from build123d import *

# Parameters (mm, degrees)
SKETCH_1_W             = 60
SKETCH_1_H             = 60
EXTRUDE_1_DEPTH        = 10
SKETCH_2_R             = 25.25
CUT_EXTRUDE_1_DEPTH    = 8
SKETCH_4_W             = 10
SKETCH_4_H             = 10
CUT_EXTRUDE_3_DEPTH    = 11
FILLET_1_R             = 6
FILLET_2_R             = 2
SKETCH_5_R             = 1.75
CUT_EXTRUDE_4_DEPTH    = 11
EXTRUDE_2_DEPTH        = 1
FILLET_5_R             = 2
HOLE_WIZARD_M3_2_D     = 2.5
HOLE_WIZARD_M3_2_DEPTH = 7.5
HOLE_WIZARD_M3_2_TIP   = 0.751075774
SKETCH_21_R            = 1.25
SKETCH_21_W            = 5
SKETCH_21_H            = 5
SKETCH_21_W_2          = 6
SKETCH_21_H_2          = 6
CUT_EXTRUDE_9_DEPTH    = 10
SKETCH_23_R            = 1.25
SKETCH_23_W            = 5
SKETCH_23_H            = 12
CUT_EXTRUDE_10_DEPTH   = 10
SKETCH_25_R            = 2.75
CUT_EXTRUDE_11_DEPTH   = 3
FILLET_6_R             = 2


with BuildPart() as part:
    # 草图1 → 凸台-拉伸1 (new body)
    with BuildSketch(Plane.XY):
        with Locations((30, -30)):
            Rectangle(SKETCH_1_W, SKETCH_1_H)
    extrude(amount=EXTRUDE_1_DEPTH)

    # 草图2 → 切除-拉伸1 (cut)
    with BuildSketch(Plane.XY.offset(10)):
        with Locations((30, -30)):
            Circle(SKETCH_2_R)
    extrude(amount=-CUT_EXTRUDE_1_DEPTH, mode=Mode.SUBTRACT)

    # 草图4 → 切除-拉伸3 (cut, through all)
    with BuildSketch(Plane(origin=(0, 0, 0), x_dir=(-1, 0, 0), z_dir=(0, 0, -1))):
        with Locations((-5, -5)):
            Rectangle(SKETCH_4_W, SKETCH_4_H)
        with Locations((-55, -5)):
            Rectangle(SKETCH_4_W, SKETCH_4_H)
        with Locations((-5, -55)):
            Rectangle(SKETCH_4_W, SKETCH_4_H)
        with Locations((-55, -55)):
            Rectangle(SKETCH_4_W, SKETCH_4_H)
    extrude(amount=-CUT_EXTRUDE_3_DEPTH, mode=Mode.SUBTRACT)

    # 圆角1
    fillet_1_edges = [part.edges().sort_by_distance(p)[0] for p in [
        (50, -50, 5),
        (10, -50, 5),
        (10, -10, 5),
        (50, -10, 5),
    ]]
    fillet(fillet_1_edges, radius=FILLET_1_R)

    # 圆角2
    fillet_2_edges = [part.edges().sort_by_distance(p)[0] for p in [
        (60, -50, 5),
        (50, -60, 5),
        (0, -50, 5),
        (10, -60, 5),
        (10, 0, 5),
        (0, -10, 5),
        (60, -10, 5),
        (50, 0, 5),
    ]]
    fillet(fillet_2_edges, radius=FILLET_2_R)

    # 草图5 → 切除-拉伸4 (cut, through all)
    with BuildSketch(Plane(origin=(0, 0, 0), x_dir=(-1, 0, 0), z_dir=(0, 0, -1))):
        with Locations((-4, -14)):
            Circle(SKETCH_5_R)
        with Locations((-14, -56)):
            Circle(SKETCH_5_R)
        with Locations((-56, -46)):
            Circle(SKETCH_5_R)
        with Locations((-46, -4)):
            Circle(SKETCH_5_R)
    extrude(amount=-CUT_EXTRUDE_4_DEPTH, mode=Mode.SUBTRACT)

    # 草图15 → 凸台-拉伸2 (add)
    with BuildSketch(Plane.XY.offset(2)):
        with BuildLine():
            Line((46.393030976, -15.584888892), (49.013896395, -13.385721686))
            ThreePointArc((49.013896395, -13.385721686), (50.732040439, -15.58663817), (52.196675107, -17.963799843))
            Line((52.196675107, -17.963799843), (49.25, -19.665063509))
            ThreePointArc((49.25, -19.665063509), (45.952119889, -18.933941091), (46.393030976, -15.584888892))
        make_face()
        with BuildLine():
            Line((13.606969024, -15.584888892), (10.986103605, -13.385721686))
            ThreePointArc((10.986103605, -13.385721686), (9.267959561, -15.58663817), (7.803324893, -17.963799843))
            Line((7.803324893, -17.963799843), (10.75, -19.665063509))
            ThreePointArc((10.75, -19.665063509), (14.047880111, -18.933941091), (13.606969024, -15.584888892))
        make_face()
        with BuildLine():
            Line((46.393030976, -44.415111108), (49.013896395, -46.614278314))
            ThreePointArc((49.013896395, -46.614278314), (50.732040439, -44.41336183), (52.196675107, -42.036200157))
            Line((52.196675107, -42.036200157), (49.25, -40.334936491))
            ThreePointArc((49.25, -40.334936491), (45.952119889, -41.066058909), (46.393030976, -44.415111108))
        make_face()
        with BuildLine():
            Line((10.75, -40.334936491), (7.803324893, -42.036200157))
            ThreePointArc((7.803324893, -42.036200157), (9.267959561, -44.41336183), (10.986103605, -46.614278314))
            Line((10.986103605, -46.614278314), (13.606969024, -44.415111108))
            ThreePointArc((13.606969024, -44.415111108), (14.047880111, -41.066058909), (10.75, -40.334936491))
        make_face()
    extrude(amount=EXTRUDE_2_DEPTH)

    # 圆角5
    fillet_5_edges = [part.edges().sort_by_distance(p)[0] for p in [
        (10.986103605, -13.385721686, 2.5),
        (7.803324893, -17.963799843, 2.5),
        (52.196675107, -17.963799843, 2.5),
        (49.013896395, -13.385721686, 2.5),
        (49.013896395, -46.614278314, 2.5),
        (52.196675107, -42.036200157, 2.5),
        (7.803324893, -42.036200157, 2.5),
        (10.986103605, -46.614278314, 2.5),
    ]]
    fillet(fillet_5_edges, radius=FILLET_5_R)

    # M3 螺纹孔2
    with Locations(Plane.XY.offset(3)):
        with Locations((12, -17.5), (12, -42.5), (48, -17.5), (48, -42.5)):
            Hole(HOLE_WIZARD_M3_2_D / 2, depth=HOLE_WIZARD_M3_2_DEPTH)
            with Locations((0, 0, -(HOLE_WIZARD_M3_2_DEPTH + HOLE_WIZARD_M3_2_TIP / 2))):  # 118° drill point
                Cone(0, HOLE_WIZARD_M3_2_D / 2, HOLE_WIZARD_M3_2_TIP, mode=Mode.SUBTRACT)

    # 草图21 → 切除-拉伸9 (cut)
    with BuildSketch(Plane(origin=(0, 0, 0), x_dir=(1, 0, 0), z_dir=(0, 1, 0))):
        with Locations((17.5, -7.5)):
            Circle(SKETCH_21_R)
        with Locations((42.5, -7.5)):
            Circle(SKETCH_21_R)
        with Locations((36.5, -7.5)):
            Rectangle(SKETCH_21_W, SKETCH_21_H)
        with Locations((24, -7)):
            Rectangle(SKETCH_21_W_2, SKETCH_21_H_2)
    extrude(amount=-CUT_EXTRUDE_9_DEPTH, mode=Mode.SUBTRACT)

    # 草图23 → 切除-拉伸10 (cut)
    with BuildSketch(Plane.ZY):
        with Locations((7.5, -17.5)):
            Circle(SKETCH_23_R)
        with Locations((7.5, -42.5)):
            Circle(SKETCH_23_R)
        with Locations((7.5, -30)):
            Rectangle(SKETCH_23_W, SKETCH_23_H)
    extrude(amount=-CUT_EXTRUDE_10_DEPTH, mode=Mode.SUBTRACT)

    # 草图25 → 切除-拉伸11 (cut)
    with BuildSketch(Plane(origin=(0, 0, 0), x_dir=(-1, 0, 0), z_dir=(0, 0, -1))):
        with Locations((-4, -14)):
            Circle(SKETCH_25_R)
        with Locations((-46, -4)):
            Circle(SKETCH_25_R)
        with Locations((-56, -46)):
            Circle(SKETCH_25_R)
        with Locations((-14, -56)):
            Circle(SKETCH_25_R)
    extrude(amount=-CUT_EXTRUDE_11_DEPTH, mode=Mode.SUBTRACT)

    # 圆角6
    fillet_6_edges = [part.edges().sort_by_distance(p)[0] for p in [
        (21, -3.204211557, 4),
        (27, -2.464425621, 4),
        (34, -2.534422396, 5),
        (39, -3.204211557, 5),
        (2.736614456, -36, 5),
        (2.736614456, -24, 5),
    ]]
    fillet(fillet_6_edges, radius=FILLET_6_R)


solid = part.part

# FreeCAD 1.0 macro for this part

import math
import FreeCAD as App
import Part
import Sketcher
from FreeCAD import Vector
Q = App.Units.Quantity


def edges_at(feature, points):
    """Names of the edges that pass closest to the given points."""
    edges = feature.Shape.Edges
    near = lambda p: min(range(len(edges)), key=lambda i: edges[i].distToShape(Part.Vertex(*p))[0])
    return sorted({f"Edge{near(p) + 1}" for p in points})

doc = App.newDocument("Part")
body = doc.addObject("PartDesign::Body", "Body")

# Sketch on XY plane
sketch1 = body.newObject("Sketcher::SketchObject", "Sketch")
sketch1.AttachmentSupport = (doc.getObject("XY_Plane"), [""])
sketch1.MapMode = "FlatFace"
sketch1.addGeometry(Part.LineSegment(Vector(0, 0, 0), Vector(0, -60, 0)), False)
sketch1.addGeometry(Part.LineSegment(Vector(0, -60, 0), Vector(60, -60, 0)), False)
sketch1.addGeometry(Part.LineSegment(Vector(60, -60, 0), Vector(60, 0, 0)), False)
sketch1.addGeometry(Part.LineSegment(Vector(60, 0, 0), Vector(0, 0, 0)), False)
sketch1.addConstraint(Sketcher.Constraint("Coincident", 0, 2, 1, 1))
sketch1.addConstraint(Sketcher.Constraint("Coincident", 1, 2, 2, 1))
sketch1.addConstraint(Sketcher.Constraint("Coincident", 2, 2, 3, 1))
sketch1.addConstraint(Sketcher.Constraint("Coincident", 3, 2, 0, 1))
sketch1.addConstraint(Sketcher.Constraint("Vertical", 0))
sketch1.addConstraint(Sketcher.Constraint("Horizontal", 1))
sketch1.addConstraint(Sketcher.Constraint("Vertical", 2))
sketch1.addConstraint(Sketcher.Constraint("Horizontal", 3))
sketch1.addConstraint(Sketcher.Constraint("Coincident", 3, 2, -1, 1))
sketch1.addConstraint(Sketcher.Constraint("Equal", 3, 0))
sketch1.addConstraint(Sketcher.Constraint("DistanceX", 1, 1, 1, 2, Q("60 mm")))
pad1 = body.newObject("PartDesign::Pad", "Pad")
pad1.Profile = sketch1
pad1.Length = 10

# Sketch on XY plane
sketch2 = body.newObject("Sketcher::SketchObject", "Sketch001")
sketch2.AttachmentSupport = (doc.getObject("XY_Plane"), [""])
sketch2.MapMode = "FlatFace"
sketch2.AttachmentOffset = App.Placement(Vector(0, 0, 10), App.Rotation())
sketch2.addGeometry(Part.Circle(Vector(30, -30, 0), Vector(0, 0, 1), 25), False)
sketch2.addConstraint(Sketcher.Constraint("Diameter", 0, Q("50.5 mm")))
sketch2.addConstraint(Sketcher.Constraint("DistanceX", -1, 1, 0, 3, Q("30 mm")))
sketch2.addConstraint(Sketcher.Constraint("DistanceY", 0, 3, -1, 1, Q("30 mm")))
pocket1 = body.newObject("PartDesign::Pocket", "Pocket")
pocket1.Profile = sketch2
pocket1.Length = 8

# Sketch on XY plane
sketch3 = body.newObject("Sketcher::SketchObject", "Sketch002")
sketch3.AttachmentSupport = (doc.getObject("XY_Plane"), [""])
sketch3.MapMode = "FlatFace"
sketch3.addGeometry(Part.LineSegment(Vector(10, 0, 0), Vector(10, -10, 0)), False)
sketch3.addGeometry(Part.LineSegment(Vector(10, -10, 0), Vector(0, -10, 0)), False)
sketch3.addGeometry(Part.LineSegment(Vector(0, -10, 0), Vector(0, 0, 0)), False)
sketch3.addGeometry(Part.LineSegment(Vector(0, 0, 0), Vector(10, 0, 0)), False)
sketch3.addGeometry(Part.LineSegment(Vector(60, 0, 0), Vector(60, -10, 0)), False)
sketch3.addGeometry(Part.LineSegment(Vector(60, -10, 0), Vector(50, -10, 0)), False)
sketch3.addGeometry(Part.LineSegment(Vector(50, -10, 0), Vector(50, 0, 0)), False)
sketch3.addGeometry(Part.LineSegment(Vector(50, 0, 0), Vector(60, 0, 0)), False)
sketch3.addGeometry(Part.LineSegment(Vector(10, -50, 0), Vector(10, -60, 0)), False)
sketch3.addGeometry(Part.LineSegment(Vector(10, -60, 0), Vector(0, -60, 0)), False)
sketch3.addGeometry(Part.LineSegment(Vector(0, -60, 0), Vector(0, -50, 0)), False)
sketch3.addGeometry(Part.LineSegment(Vector(0, -50, 0), Vector(10, -50, 0)), False)
sketch3.addGeometry(Part.LineSegment(Vector(60, -50, 0), Vector(60, -60, 0)), False)
sketch3.addGeometry(Part.LineSegment(Vector(60, -60, 0), Vector(50, -60, 0)), False)
sketch3.addGeometry(Part.LineSegment(Vector(50, -60, 0), Vector(50, -50, 0)), False)
sketch3.addGeometry(Part.LineSegment(Vector(50, -50, 0), Vector(60, -50, 0)), False)
sketch3.addConstraint(Sketcher.Constraint("Coincident", 0, 2, 1, 1))
sketch3.addConstraint(Sketcher.Constraint("Coincident", 1, 2, 2, 1))
sketch3.addConstraint(Sketcher.Constraint("Coincident", 2, 2, 3, 1))
sketch3.addConstraint(Sketcher.Constraint("Coincident", 3, 2, 0, 1))
sketch3.addConstraint(Sketcher.Constraint("Coincident", 4, 2, 5, 1))
sketch3.addConstraint(Sketcher.Constraint("Coincident", 5, 2, 6, 1))
sketch3.addConstraint(Sketcher.Constraint("Coincident", 6, 2, 7, 1))
sketch3.addConstraint(Sketcher.Constraint("Coincident", 7, 2, 4, 1))
sketch3.addConstraint(Sketcher.Constraint("Coincident", 8, 2, 9, 1))
sketch3.addConstraint(Sketcher.Constraint("Coincident", 9, 2, 10, 1))
sketch3.addConstraint(Sketcher.Constraint("Coincident", 10, 2, 11, 1))
sketch3.addConstraint(Sketcher.Constraint("Coincident", 11, 2, 8, 1))
sketch3.addConstraint(Sketcher.Constraint("Coincident", 12, 2, 13, 1))
sketch3.addConstraint(Sketcher.Constraint("Coincident", 13, 2, 14, 1))
sketch3.addConstraint(Sketcher.Constraint("Coincident", 14, 2, 15, 1))
sketch3.addConstraint(Sketcher.Constraint("Coincident", 15, 2, 12, 1))
sketch3.addConstraint(Sketcher.Constraint("Vertical", 0))
sketch3.addConstraint(Sketcher.Constraint("Horizontal", 1))
sketch3.addConstraint(Sketcher.Constraint("Vertical", 2))
sketch3.addConstraint(Sketcher.Constraint("Horizontal", 3))
sketch3.addConstraint(Sketcher.Constraint("Vertical", 4))
sketch3.addConstraint(Sketcher.Constraint("Horizontal", 5))
sketch3.addConstraint(Sketcher.Constraint("Vertical", 6))
sketch3.addConstraint(Sketcher.Constraint("Horizontal", 7))
sketch3.addConstraint(Sketcher.Constraint("Vertical", 8))
sketch3.addConstraint(Sketcher.Constraint("Horizontal", 9))
sketch3.addConstraint(Sketcher.Constraint("Vertical", 10))
sketch3.addConstraint(Sketcher.Constraint("Horizontal", 11))
sketch3.addConstraint(Sketcher.Constraint("Vertical", 12))
sketch3.addConstraint(Sketcher.Constraint("Horizontal", 13))
sketch3.addConstraint(Sketcher.Constraint("Vertical", 14))
sketch3.addConstraint(Sketcher.Constraint("Horizontal", 15))
sketch3.addConstraint(Sketcher.Constraint("Coincident", 2, 2, -1, 1))
sketch3.addConstraint(Sketcher.Constraint("PointOnObject", 6, 2, -1))
sketch3.addConstraint(Sketcher.Constraint("PointOnObject", 9, 2, -2))
sketch3.addConstraint(Sketcher.Constraint("Horizontal", 1, 2, 4, 2))
sketch3.addConstraint(Sketcher.Constraint("Horizontal", 9, 2, 12, 2))
sketch3.addConstraint(Sketcher.Constraint("Horizontal", 11, 2, 14, 2))
sketch3.addConstraint(Sketcher.Constraint("Vertical", 3, 2, 8, 2))
sketch3.addConstraint(Sketcher.Constraint("Vertical", 7, 2, 12, 2))
sketch3.addConstraint(Sketcher.Constraint("Vertical", 6, 2, 13, 2))
sketch3.addConstraint(Sketcher.Constraint("Equal", 3, 5))
sketch3.addConstraint(Sketcher.Constraint("Equal", 15, 0))
sketch3.addConstraint(Sketcher.Constraint("Equal", 6, 8))
sketch3.addConstraint(Sketcher.Constraint("DistanceX", 1, 2, 1, 1, Q("10 mm")))
sketch3.addConstraint(Sketcher.Constraint("DistanceX", -1, 1, 4, 2, Q("60 mm")))
sketch3.addConstraint(Sketcher.Constraint("DistanceY", 8, 2, -1, 1, Q("60 mm")))
pocket2 = body.newObject("PartDesign::Pocket", "Pocket001")
pocket2.Profile = sketch3
pocket2.Type = "ThroughAll"
pocket2.Reversed = True
doc.recompute()

fillet = body.newObject("PartDesign::Fillet", "Fillet")
fillet.Base = (pocket2, edges_at(pocket2, [
    (50, -50, 5),
    (10, -50, 5),
    (10, -10, 5),
    (50, -10, 5),
]))
fillet.Radius = 6
doc.recompute()

fillet2 = body.newObject("PartDesign::Fillet", "Fillet001")
fillet2.Base = (fillet, edges_at(fillet, [
    (60, -50, 5),
    (50, -60, 5),
    (0, -50, 5),
    (10, -60, 5),
    (10, 0, 5),
    (0, -10, 5),
    (60, -10, 5),
    (50, 0, 5),
]))
fillet2.Radius = 2

# Sketch on XY plane
sketch4 = body.newObject("Sketcher::SketchObject", "Sketch003")
sketch4.AttachmentSupport = (doc.getObject("XY_Plane"), [""])
sketch4.MapMode = "FlatFace"
sketch4.addGeometry(Part.Circle(Vector(4, -14, 0), Vector(0, 0, 1), 1.8), False)
sketch4.addGeometry(Part.Circle(Vector(14, -56, 0), Vector(0, 0, 1), 1.8), False)
sketch4.addGeometry(Part.Circle(Vector(56, -46, 0), Vector(0, 0, 1), 1.8), False)
sketch4.addGeometry(Part.Circle(Vector(46, -4, 0), Vector(0, 0, 1), 1.8), False)
sketch4.addConstraint(Sketcher.Constraint("Equal", 0, 1))
sketch4.addConstraint(Sketcher.Constraint("Equal", 1, 2))
sketch4.addConstraint(Sketcher.Constraint("Equal", 2, 3))
sketch4.addConstraint(Sketcher.Constraint("Diameter", 0, Q("3.5 mm")))
sketch4.addConstraint(Sketcher.Constraint("DistanceX", -1, 1, 0, 3, Q("4 mm")))
sketch4.addConstraint(Sketcher.Constraint("DistanceY", 0, 3, -1, 1, Q("14 mm")))
sketch4.addConstraint(Sketcher.Constraint("DistanceX", -1, 1, 1, 3, Q("14 mm")))
sketch4.addConstraint(Sketcher.Constraint("DistanceY", 1, 3, -1, 1, Q("56 mm")))
sketch4.addConstraint(Sketcher.Constraint("DistanceX", -1, 1, 2, 3, Q("56 mm")))
sketch4.addConstraint(Sketcher.Constraint("DistanceY", 2, 3, -1, 1, Q("46 mm")))
sketch4.addConstraint(Sketcher.Constraint("DistanceX", -1, 1, 3, 3, Q("46 mm")))
sketch4.addConstraint(Sketcher.Constraint("DistanceY", 3, 3, -1, 1, Q("4 mm")))
pocket3 = body.newObject("PartDesign::Pocket", "Pocket002")
pocket3.Profile = sketch4
pocket3.Type = "ThroughAll"
pocket3.Reversed = True

# Sketch on XY plane
sketch5 = body.newObject("Sketcher::SketchObject", "Sketch004")
sketch5.AttachmentSupport = (doc.getObject("XY_Plane"), [""])
sketch5.MapMode = "FlatFace"
sketch5.AttachmentOffset = App.Placement(Vector(0, 0, 2), App.Rotation())
sketch5.addGeometry(Part.LineSegment(Vector(49, -13.4, 0), Vector(46.4, -15.6, 0)), False)
sketch5.addGeometry(Part.ArcOfCircle(Part.Circle(Vector(48, -17.5, 0), Vector(0, 0, 1), 2.5), math.radians(130), math.radians(300)), False)
sketch5.addGeometry(Part.LineSegment(Vector(49.2, -19.7, 0), Vector(52.2, -18, 0)), False)
sketch5.addGeometry(Part.ArcOfCircle(Part.Circle(Vector(30, -30, 0), Vector(0, 0, 1), 25.3), math.radians(28.47), math.radians(41.15)), False)
sketch5.addGeometry(Part.LineSegment(Vector(13.6, -15.6, 0), Vector(11, -13.4, 0)), False)
sketch5.addGeometry(Part.ArcOfCircle(Part.Circle(Vector(30, -30, 0), Vector(0, 0, 1), 25.3), math.radians(138.85), math.radians(151.53)), False)
sketch5.addGeometry(Part.LineSegment(Vector(7.8, -18, 0), Vector(10.8, -19.7, 0)), False)
sketch5.addGeometry(Part.ArcOfCircle(Part.Circle(Vector(12, -17.5, 0), Vector(0, 0, 1), 2.5), math.radians(-120), math.radians(50)), False)
sketch5.addGeometry(Part.LineSegment(Vector(46.4, -44.4, 0), Vector(49, -46.6, 0)), False)
sketch5.addGeometry(Part.ArcOfCircle(Part.Circle(Vector(30, -30, 0), Vector(0, 0, 1), 25.3), math.radians(-41.15), math.radians(-28.47)), False)
sketch5.addGeometry(Part.LineSegment(Vector(52.2, -42, 0), Vector(49.2, -40.3, 0)), False)
sketch5.addGeometry(Part.ArcOfCircle(Part.Circle(Vector(48, -42.5, 0), Vector(0, 0, 1), 2.5), math.radians(60), math.radians(230)), False)
sketch5.addGeometry(Part.LineSegment(Vector(10.8, -40.3, 0), Vector(7.8, -42, 0)), False)
sketch5.addGeometry(Part.ArcOfCircle(Part.Circle(Vector(30, -30, 0), Vector(0, 0, 1), 25.3), math.radians(-151.53), math.radians(-138.85)), False)
sketch5.addGeometry(Part.LineSegment(Vector(11, -46.6, 0), Vector(13.6, -44.4, 0)), False)
sketch5.addGeometry(Part.ArcOfCircle(Part.Circle(Vector(12, -42.5, 0), Vector(0, 0, 1), 2.5), math.radians(-50), math.radians(120)), False)
sketch5.addConstraint(Sketcher.Constraint("Tangent", 0, 2, 1, 1))
sketch5.addConstraint(Sketcher.Constraint("Tangent", 1, 2, 2, 1))
sketch5.addConstraint(Sketcher.Constraint("Coincident", 2, 2, 3, 1))
sketch5.addConstraint(Sketcher.Constraint("Coincident", 3, 2, 0, 1))
sketch5.addConstraint(Sketcher.Constraint("Coincident", 4, 2, 5, 1))
sketch5.addConstraint(Sketcher.Constraint("Coincident", 5, 2, 6, 1))
sketch5.addConstraint(Sketcher.Constraint("Tangent", 6, 2, 7, 1))
sketch5.addConstraint(Sketcher.Constraint("Tangent", 7, 2, 4, 1))
sketch5.addConstraint(Sketcher.Constraint("Coincident", 8, 2, 9, 1))
sketch5.addConstraint(Sketcher.Constraint("Coincident", 9, 2, 10, 1))
sketch5.addConstraint(Sketcher.Constraint("Tangent", 10, 2, 11, 1))
sketch5.addConstraint(Sketcher.Constraint("Tangent", 11, 2, 8, 1))
sketch5.addConstraint(Sketcher.Constraint("Coincident", 12, 2, 13, 1))
sketch5.addConstraint(Sketcher.Constraint("Coincident", 13, 2, 14, 1))
sketch5.addConstraint(Sketcher.Constraint("Tangent", 14, 2, 15, 1))
sketch5.addConstraint(Sketcher.Constraint("Tangent", 15, 2, 12, 1))
sketch5.addConstraint(Sketcher.Constraint("Coincident", 5, 3, 3, 3))
sketch5.addConstraint(Sketcher.Constraint("Coincident", 9, 3, 3, 3))
sketch5.addConstraint(Sketcher.Constraint("Coincident", 13, 3, 3, 3))
sketch5.addConstraint(Sketcher.Constraint("Equal", 3, 5))
sketch5.addConstraint(Sketcher.Constraint("Equal", 1, 7))
sketch5.addConstraint(Sketcher.Constraint("Equal", 5, 9))
sketch5.addConstraint(Sketcher.Constraint("Equal", 7, 11))
sketch5.addConstraint(Sketcher.Constraint("Equal", 9, 13))
sketch5.addConstraint(Sketcher.Constraint("Equal", 11, 15))
sketch5.addConstraint(Sketcher.Constraint("Parallel", 4, 8))
sketch5.addConstraint(Sketcher.Constraint("Parallel", 6, 10))
sketch5.addConstraint(Sketcher.Constraint("Parallel", 2, 12))
sketch5.addConstraint(Sketcher.Constraint("Parallel", 0, 14))
sketch5.addConstraint(Sketcher.Constraint("Horizontal", 1, 3, 7, 3))
sketch5.addConstraint(Sketcher.Constraint("Horizontal", 11, 3, 15, 3))
sketch5.addConstraint(Sketcher.Constraint("Horizontal", 3, 2, 4, 2))
sketch5.addConstraint(Sketcher.Constraint("Horizontal", 2, 2, 5, 2))
sketch5.addConstraint(Sketcher.Constraint("Horizontal", 1, 2, 6, 2))
sketch5.addConstraint(Sketcher.Constraint("Horizontal", 9, 2, 12, 2))
sketch5.addConstraint(Sketcher.Constraint("Vertical", 1, 3, 11, 3))
sketch5.addConstraint(Sketcher.Constraint("Vertical", 3, 2, 8, 2))
sketch5.addConstraint(Sketcher.Constraint("Radius", 1, Q("2.5 mm")))
sketch5.addConstraint(Sketcher.Constraint("Angle", 0, Q("-140 deg")))
sketch5.addConstraint(Sketcher.Constraint("Angle", 2, Q("30 deg")))
sketch5.addConstraint(Sketcher.Constraint("Radius", 3, Q("25.25 mm")))
sketch5.addConstraint(Sketcher.Constraint("DistanceX", -1, 1, 1, 3, Q("48 mm")))
sketch5.addConstraint(Sketcher.Constraint("DistanceX", -1, 1, 3, 3, Q("30 mm")))
sketch5.addConstraint(Sketcher.Constraint("DistanceY", 3, 3, -1, 1, Q("30 mm")))
sketch5.addConstraint(Sketcher.Constraint("DistanceY", 11, 3, 1, 3, Q("25 mm")))
pad2 = body.newObject("PartDesign::Pad", "Pad001")
pad2.Profile = sketch5
pad2.Length = 1
doc.recompute()

fillet3 = body.newObject("PartDesign::Fillet", "Fillet002")
fillet3.Base = (pad2, edges_at(pad2, [
    (10.986, -13.386, 2.5),
    (7.803, -17.964, 2.5),
    (52.197, -17.964, 2.5),
    (49.014, -13.386, 2.5),
    (49.014, -46.614, 2.5),
    (52.197, -42.036, 2.5),
    (7.803, -42.036, 2.5),
    (10.986, -46.614, 2.5),
]))
fillet3.Radius = 2

# Sketch on XY plane
sketch6 = body.newObject("Sketcher::SketchObject", "Sketch005")
sketch6.AttachmentSupport = (doc.getObject("XY_Plane"), [""])
sketch6.MapMode = "FlatFace"
sketch6.AttachmentOffset = App.Placement(Vector(0, 0, 3), App.Rotation())
sketch6.addGeometry(Part.Circle(Vector(12, -17.5, 0), Vector(0, 0, 1), 1.2), False)
sketch6.addGeometry(Part.Circle(Vector(12, -42.5, 0), Vector(0, 0, 1), 1.2), False)
sketch6.addGeometry(Part.Circle(Vector(48, -17.5, 0), Vector(0, 0, 1), 1.2), False)
sketch6.addGeometry(Part.Circle(Vector(48, -42.5, 0), Vector(0, 0, 1), 1.2), False)
sketch6.addConstraint(Sketcher.Constraint("Equal", 0, 1))
sketch6.addConstraint(Sketcher.Constraint("Equal", 1, 2))
sketch6.addConstraint(Sketcher.Constraint("Equal", 2, 3))
sketch6.addConstraint(Sketcher.Constraint("Horizontal", 0, 3, 2, 3))
sketch6.addConstraint(Sketcher.Constraint("Horizontal", 1, 3, 3, 3))
sketch6.addConstraint(Sketcher.Constraint("Vertical", 0, 3, 1, 3))
sketch6.addConstraint(Sketcher.Constraint("Vertical", 2, 3, 3, 3))
sketch6.addConstraint(Sketcher.Constraint("Diameter", 0, Q("2.5 mm")))
sketch6.addConstraint(Sketcher.Constraint("DistanceX", -1, 1, 0, 3, Q("12 mm")))
sketch6.addConstraint(Sketcher.Constraint("DistanceX", -1, 1, 2, 3, Q("48 mm")))
sketch6.addConstraint(Sketcher.Constraint("DistanceY", 1, 3, 0, 3, Q("25 mm")))
sketch6.addConstraint(Sketcher.Constraint("DistanceY", 0, 3, -1, 1, Q("17.5 mm")))
doc.recompute()
hole = body.newObject("PartDesign::Hole", "Hole")
hole.Profile = sketch6
hole.ThreadType = "None"
hole.Diameter = 2.5
hole.DepthType = "Dimension"
hole.Depth = 7.5
hole.DrillPoint = "Angled"
hole.DrillPointAngle = 118

# Sketch on XZ plane
sketch7 = body.newObject("Sketcher::SketchObject", "Sketch006")
sketch7.AttachmentSupport = (doc.getObject("XZ_Plane"), [""])
sketch7.MapMode = "FlatFace"
sketch7.addGeometry(Part.Circle(Vector(17.5, 7.5, 0), Vector(0, 0, 1), 1.2), False)
sketch7.addGeometry(Part.Circle(Vector(42.5, 7.5, 0), Vector(0, 0, 1), 1.2), False)
sketch7.addGeometry(Part.LineSegment(Vector(34, 5, 0), Vector(34, 10, 0)), False)
sketch7.addGeometry(Part.LineSegment(Vector(34, 10, 0), Vector(39, 10, 0)), False)
sketch7.addGeometry(Part.LineSegment(Vector(39, 10, 0), Vector(39, 5, 0)), False)
sketch7.addGeometry(Part.LineSegment(Vector(39, 5, 0), Vector(34, 5, 0)), False)
sketch7.addGeometry(Part.LineSegment(Vector(21, 4, 0), Vector(21, 10, 0)), False)
sketch7.addGeometry(Part.LineSegment(Vector(21, 10, 0), Vector(27, 10, 0)), False)
sketch7.addGeometry(Part.LineSegment(Vector(27, 10, 0), Vector(27, 4, 0)), False)
sketch7.addGeometry(Part.LineSegment(Vector(27, 4, 0), Vector(21, 4, 0)), False)
sketch7.addConstraint(Sketcher.Constraint("Coincident", 2, 2, 3, 1))
sketch7.addConstraint(Sketcher.Constraint("Coincident", 3, 2, 4, 1))
sketch7.addConstraint(Sketcher.Constraint("Coincident", 4, 2, 5, 1))
sketch7.addConstraint(Sketcher.Constraint("Coincident", 5, 2, 2, 1))
sketch7.addConstraint(Sketcher.Constraint("Coincident", 6, 2, 7, 1))
sketch7.addConstraint(Sketcher.Constraint("Coincident", 7, 2, 8, 1))
sketch7.addConstraint(Sketcher.Constraint("Coincident", 8, 2, 9, 1))
sketch7.addConstraint(Sketcher.Constraint("Coincident", 9, 2, 6, 1))
sketch7.addConstraint(Sketcher.Constraint("Vertical", 2))
sketch7.addConstraint(Sketcher.Constraint("Horizontal", 3))
sketch7.addConstraint(Sketcher.Constraint("Vertical", 4))
sketch7.addConstraint(Sketcher.Constraint("Horizontal", 5))
sketch7.addConstraint(Sketcher.Constraint("Vertical", 6))
sketch7.addConstraint(Sketcher.Constraint("Horizontal", 7))
sketch7.addConstraint(Sketcher.Constraint("Vertical", 8))
sketch7.addConstraint(Sketcher.Constraint("Horizontal", 9))
sketch7.addConstraint(Sketcher.Constraint("Equal", 0, 1))
sketch7.addConstraint(Sketcher.Constraint("Horizontal", 0, 3, 1, 3))
sketch7.addConstraint(Sketcher.Constraint("Horizontal", 3, 2, 6, 2))
sketch7.addConstraint(Sketcher.Constraint("Equal", 5, 2))
sketch7.addConstraint(Sketcher.Constraint("Equal", 9, 6))
sketch7.addConstraint(Sketcher.Constraint("Diameter", 0, Q("2.5 mm")))
sketch7.addConstraint(Sketcher.Constraint("DistanceX", 3, 1, 3, 2, Q("5 mm")))
sketch7.addConstraint(Sketcher.Constraint("DistanceX", 7, 1, 7, 2, Q("6 mm")))
sketch7.addConstraint(Sketcher.Constraint("DistanceX", -1, 1, 2, 2, Q("34 mm")))
sketch7.addConstraint(Sketcher.Constraint("DistanceY", -1, 1, 2, 2, Q("10 mm")))
sketch7.addConstraint(Sketcher.Constraint("DistanceX", -1, 1, 6, 2, Q("21 mm")))
sketch7.addConstraint(Sketcher.Constraint("DistanceX", 0, 3, 1, 3, Q("25 mm")))
sketch7.addConstraint(Sketcher.Constraint("DistanceX", -1, 1, 0, 3, Q("17.5 mm")))
sketch7.addConstraint(Sketcher.Constraint("DistanceY", -1, 1, 0, 3, Q("7.5 mm")))
pocket4 = body.newObject("PartDesign::Pocket", "Pocket003")
pocket4.Profile = sketch7
pocket4.Length = 10
pocket4.Reversed = True

# Sketch on YZ plane
sketch8 = body.newObject("Sketcher::SketchObject", "Sketch007")
sketch8.AttachmentSupport = (doc.getObject("YZ_Plane"), [""])
sketch8.MapMode = "FlatFace"
sketch8.addGeometry(Part.Circle(Vector(-17.5, 7.5, 0), Vector(0, 0, 1), 1.2), False)
sketch8.addGeometry(Part.Circle(Vector(-42.5, 7.5, 0), Vector(0, 0, 1), 1.2), False)
sketch8.addGeometry(Part.LineSegment(Vector(-24, 5, 0), Vector(-36, 5, 0)), False)
sketch8.addGeometry(Part.LineSegment(Vector(-36, 5, 0), Vector(-36, 10, 0)), False)
sketch8.addGeometry(Part.LineSegment(Vector(-36, 10, 0), Vector(-24, 10, 0)), False)
sketch8.addGeometry(Part.LineSegment(Vector(-24, 10, 0), Vector(-24, 5, 0)), False)
sketch8.addConstraint(Sketcher.Constraint("Coincident", 2, 2, 3, 1))
sketch8.addConstraint(Sketcher.Constraint("Coincident", 3, 2, 4, 1))
sketch8.addConstraint(Sketcher.Constraint("Coincident", 4, 2, 5, 1))
sketch8.addConstraint(Sketcher.Constraint("Coincident", 5, 2, 2, 1))
sketch8.addConstraint(Sketcher.Constraint("Horizontal", 2))
sketch8.addConstraint(Sketcher.Constraint("Vertical", 3))
sketch8.addConstraint(Sketcher.Constraint("Horizontal", 4))
sketch8.addConstraint(Sketcher.Constraint("Vertical", 5))
sketch8.addConstraint(Sketcher.Constraint("Equal", 0, 1))
sketch8.addConstraint(Sketcher.Constraint("Horizontal", 0, 3, 1, 3))
sketch8.addConstraint(Sketcher.Constraint("Diameter", 0, Q("2.5 mm")))
sketch8.addConstraint(Sketcher.Constraint("DistanceX", 2, 2, 2, 1, Q("12 mm")))
sketch8.addConstraint(Sketcher.Constraint("DistanceY", 3, 1, 3, 2, Q("5 mm")))
sketch8.addConstraint(Sketcher.Constraint("DistanceX", 2, 2, -1, 1, Q("36 mm")))
sketch8.addConstraint(Sketcher.Constraint("DistanceY", -1, 1, 2, 2, Q("5 mm")))
sketch8.addConstraint(Sketcher.Constraint("DistanceX", 1, 3, 0, 3, Q("25 mm")))
sketch8.addConstraint(Sketcher.Constraint("DistanceX", 0, 3, -1, 1, Q("17.5 mm")))
sketch8.addConstraint(Sketcher.Constraint("DistanceY", -1, 1, 0, 3, Q("7.5 mm")))
pocket5 = body.newObject("PartDesign::Pocket", "Pocket004")
pocket5.Profile = sketch8
pocket5.Length = 10
pocket5.Reversed = True

# Sketch on XY plane
sketch9 = body.newObject("Sketcher::SketchObject", "Sketch008")
sketch9.AttachmentSupport = (doc.getObject("XY_Plane"), [""])
sketch9.MapMode = "FlatFace"
sketch9.addGeometry(Part.Circle(Vector(4, -14, 0), Vector(0, 0, 1), 2.8), False)
sketch9.addGeometry(Part.Circle(Vector(46, -4, 0), Vector(0, 0, 1), 2.8), False)
sketch9.addGeometry(Part.Circle(Vector(56, -46, 0), Vector(0, 0, 1), 2.8), False)
sketch9.addGeometry(Part.Circle(Vector(14, -56, 0), Vector(0, 0, 1), 2.8), False)
sketch9.addConstraint(Sketcher.Constraint("Equal", 0, 1))
sketch9.addConstraint(Sketcher.Constraint("Equal", 1, 2))
sketch9.addConstraint(Sketcher.Constraint("Equal", 2, 3))
sketch9.addConstraint(Sketcher.Constraint("Diameter", 0, Q("5.5 mm")))
sketch9.addConstraint(Sketcher.Constraint("DistanceX", -1, 1, 0, 3, Q("4 mm")))
sketch9.addConstraint(Sketcher.Constraint("DistanceY", 0, 3, -1, 1, Q("14 mm")))
sketch9.addConstraint(Sketcher.Constraint("DistanceX", -1, 1, 1, 3, Q("46 mm")))
sketch9.addConstraint(Sketcher.Constraint("DistanceY", 1, 3, -1, 1, Q("4 mm")))
sketch9.addConstraint(Sketcher.Constraint("DistanceX", -1, 1, 2, 3, Q("56 mm")))
sketch9.addConstraint(Sketcher.Constraint("DistanceY", 2, 3, -1, 1, Q("46 mm")))
sketch9.addConstraint(Sketcher.Constraint("DistanceX", -1, 1, 3, 3, Q("14 mm")))
sketch9.addConstraint(Sketcher.Constraint("DistanceY", 3, 3, -1, 1, Q("56 mm")))
pocket6 = body.newObject("PartDesign::Pocket", "Pocket005")
pocket6.Profile = sketch9
pocket6.Length = 3
pocket6.Reversed = True
doc.recompute()

fillet4 = body.newObject("PartDesign::Fillet", "Fillet003")
fillet4.Base = (pocket6, edges_at(pocket6, [
    (21, -3.204, 4),
    (27, -2.464, 4),
    (34, -2.534, 5),
    (39, -3.204, 5),
    (2.737, -36, 5),
    (2.737, -24, 5),
]))
fillet4.Radius = 2

doc.recompute()
